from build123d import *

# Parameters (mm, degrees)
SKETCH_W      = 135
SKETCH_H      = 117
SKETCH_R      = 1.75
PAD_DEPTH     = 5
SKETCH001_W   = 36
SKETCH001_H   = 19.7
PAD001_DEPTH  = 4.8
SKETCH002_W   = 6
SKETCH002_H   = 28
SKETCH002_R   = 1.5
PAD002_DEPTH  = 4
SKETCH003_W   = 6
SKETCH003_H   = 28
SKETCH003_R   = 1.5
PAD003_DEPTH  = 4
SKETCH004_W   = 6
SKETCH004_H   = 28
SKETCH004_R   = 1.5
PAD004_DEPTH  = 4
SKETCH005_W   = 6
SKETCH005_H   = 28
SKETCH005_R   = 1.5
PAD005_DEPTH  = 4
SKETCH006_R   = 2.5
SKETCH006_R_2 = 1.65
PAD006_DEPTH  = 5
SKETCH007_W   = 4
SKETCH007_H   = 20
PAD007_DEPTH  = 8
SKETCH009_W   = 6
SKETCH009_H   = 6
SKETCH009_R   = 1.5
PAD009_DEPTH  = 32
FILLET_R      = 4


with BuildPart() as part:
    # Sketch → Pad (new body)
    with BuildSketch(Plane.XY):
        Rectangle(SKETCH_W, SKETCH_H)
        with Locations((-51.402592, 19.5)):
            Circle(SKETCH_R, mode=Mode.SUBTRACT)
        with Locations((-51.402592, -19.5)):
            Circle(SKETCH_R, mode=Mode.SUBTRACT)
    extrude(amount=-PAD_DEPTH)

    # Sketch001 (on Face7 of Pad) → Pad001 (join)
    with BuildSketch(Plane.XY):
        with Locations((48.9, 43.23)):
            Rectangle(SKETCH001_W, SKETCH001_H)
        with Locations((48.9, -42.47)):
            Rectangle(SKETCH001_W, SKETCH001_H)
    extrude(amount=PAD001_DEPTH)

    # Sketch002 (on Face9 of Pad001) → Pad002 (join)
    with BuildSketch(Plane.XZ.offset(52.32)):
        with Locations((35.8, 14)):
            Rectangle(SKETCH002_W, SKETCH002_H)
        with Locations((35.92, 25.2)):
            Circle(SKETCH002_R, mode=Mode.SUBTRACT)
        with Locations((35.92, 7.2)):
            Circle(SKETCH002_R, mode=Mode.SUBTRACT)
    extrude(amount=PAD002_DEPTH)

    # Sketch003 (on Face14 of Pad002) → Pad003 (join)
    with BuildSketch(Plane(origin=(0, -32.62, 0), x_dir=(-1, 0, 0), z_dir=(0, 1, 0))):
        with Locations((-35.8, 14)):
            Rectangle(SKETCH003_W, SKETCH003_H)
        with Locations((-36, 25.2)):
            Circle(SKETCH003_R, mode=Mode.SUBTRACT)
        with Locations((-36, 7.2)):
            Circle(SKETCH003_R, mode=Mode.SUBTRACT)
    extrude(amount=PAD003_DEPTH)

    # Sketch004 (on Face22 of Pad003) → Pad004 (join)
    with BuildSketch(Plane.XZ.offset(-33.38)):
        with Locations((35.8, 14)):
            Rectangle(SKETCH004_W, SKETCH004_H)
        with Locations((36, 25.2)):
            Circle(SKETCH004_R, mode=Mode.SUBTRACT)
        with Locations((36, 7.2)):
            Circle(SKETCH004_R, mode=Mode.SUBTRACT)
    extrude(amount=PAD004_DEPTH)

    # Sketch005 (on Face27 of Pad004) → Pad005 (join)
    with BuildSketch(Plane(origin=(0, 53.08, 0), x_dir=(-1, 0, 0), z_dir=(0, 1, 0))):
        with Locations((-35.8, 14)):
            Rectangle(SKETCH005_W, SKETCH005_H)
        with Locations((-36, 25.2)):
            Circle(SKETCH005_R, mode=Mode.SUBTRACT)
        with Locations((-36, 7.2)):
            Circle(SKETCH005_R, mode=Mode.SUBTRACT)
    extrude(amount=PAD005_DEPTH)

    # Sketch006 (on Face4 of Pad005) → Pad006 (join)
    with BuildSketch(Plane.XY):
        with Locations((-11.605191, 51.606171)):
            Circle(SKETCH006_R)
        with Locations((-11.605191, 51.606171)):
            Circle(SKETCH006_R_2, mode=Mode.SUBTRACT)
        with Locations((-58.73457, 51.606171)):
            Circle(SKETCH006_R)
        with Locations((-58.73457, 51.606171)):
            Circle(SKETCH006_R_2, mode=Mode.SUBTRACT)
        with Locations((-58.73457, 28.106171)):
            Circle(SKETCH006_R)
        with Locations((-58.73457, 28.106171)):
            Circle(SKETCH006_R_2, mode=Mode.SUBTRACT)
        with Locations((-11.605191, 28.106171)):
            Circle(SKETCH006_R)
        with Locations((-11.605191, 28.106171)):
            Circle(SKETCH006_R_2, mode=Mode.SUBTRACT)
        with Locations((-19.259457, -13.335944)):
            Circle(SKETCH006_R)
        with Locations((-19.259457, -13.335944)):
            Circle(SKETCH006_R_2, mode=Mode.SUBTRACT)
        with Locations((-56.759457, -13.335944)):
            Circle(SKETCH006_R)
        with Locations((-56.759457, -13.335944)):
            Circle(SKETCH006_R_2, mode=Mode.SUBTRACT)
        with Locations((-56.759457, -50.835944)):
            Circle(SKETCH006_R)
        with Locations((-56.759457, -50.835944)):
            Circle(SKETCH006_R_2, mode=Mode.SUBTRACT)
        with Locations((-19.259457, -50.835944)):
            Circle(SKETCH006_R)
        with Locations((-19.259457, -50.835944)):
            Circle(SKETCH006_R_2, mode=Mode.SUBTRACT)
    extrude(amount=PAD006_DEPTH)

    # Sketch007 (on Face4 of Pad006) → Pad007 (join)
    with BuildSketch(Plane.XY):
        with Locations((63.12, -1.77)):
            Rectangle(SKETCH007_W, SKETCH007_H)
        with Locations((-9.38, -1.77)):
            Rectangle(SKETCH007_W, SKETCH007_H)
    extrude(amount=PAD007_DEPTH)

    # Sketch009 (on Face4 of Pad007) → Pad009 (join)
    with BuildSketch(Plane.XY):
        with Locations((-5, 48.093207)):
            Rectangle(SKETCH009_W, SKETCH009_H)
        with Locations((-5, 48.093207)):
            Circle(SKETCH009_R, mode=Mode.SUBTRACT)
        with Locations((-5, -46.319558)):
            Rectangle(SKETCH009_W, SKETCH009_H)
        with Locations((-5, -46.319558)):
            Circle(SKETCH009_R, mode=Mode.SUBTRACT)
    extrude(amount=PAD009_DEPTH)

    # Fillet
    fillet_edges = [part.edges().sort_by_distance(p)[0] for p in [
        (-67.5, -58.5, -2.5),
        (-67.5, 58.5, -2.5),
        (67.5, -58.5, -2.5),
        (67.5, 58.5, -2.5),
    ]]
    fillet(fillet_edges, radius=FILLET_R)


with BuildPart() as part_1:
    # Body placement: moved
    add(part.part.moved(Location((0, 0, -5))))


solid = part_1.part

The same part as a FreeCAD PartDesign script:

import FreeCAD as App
import Part
import Sketcher
from FreeCAD import Vector
Q = App.Units.Quantity


def edges_at(feature, points):
    """Names of the edges that pass closest to the given points."""
    edges = feature.Shape.Edges
    near = lambda p: min(range(len(edges)), key=lambda i: edges[i].distToShape(Part.Vertex(*p))[0])
    return sorted({f"Edge{near(p) + 1}" for p in points})

doc = App.newDocument("Part")
body = doc.addObject("PartDesign::Body", "Body")

sketch1 = body.newObject("Sketcher::SketchObject", "Sketch")
sketch1.AttachmentSupport = (doc.getObject("XY_Plane"), [""])
sketch1.MapMode = "FlatFace"
sketch1.addGeometry(Part.LineSegment(Vector(-67.5, 58.5, 0), Vector(-67.5, -58.5, 0)), False)
sketch1.addGeometry(Part.LineSegment(Vector(-67.5, -58.5, 0), Vector(67.5, -58.5, 0)), False)
sketch1.addGeometry(Part.LineSegment(Vector(67.5, -58.5, 0), Vector(67.5, 58.5, 0)), False)
sketch1.addGeometry(Part.LineSegment(Vector(67.5, 58.5, 0), Vector(-67.5, 58.5, 0)), False)
sketch1.addGeometry(Part.Circle(Vector(-51.4, -19.5, 0), Vector(0, 0, 1), 1.8), False)
sketch1.addGeometry(Part.Circle(Vector(-51.4, 19.5, 0), Vector(0, 0, 1), 1.8), False)
sketch1.addConstraint(Sketcher.Constraint("Coincident", 0, 2, 1, 1))
sketch1.addConstraint(Sketcher.Constraint("Coincident", 1, 2, 2, 1))
sketch1.addConstraint(Sketcher.Constraint("Coincident", 2, 2, 3, 1))
sketch1.addConstraint(Sketcher.Constraint("Coincident", 3, 2, 0, 1))
sketch1.addConstraint(Sketcher.Constraint("Vertical", 0))
sketch1.addConstraint(Sketcher.Constraint("Horizontal", 1))
sketch1.addConstraint(Sketcher.Constraint("Vertical", 2))
sketch1.addConstraint(Sketcher.Constraint("Horizontal", 3))
sketch1.addConstraint(Sketcher.Constraint("Equal", 4, 5))
sketch1.addConstraint(Sketcher.Constraint("Symmetric", 0, 2, 2, 2, -1, 1))
sketch1.addConstraint(Sketcher.Constraint("Symmetric", 4, 3, 5, 3, -1))
sketch1.addConstraint(Sketcher.Constraint("Diameter", 4, Q("3.5 mm")))
sketch1.addConstraint(Sketcher.Constraint("DistanceX", 1, 1, 1, 2, Q("135 mm")))
sketch1.addConstraint(Sketcher.Constraint("DistanceY", 0, 2, 0, 1, Q("117 mm")))
sketch1.addConstraint(Sketcher.Constraint("DistanceY", 4, 3, 5, 3, Q("39 mm")))
sketch1.addConstraint(Sketcher.Constraint("DistanceX", 0, 2, 4, 3, Q("16.097408 mm")))
pad1 = body.newObject("PartDesign::Pad", "Pad")
pad1.Profile = sketch1
pad1.Length = 5
pad1.Reversed = True

sketch2 = body.newObject("Sketcher::SketchObject", "Sketch001")
sketch2.AttachmentSupport = (doc.getObject("XY_Plane"), [""])
sketch2.MapMode = "FlatFace"
sketch2.addGeometry(Part.LineSegment(Vector(31, 53, 0), Vector(31, 33, 0)), False)
sketch2.addGeometry(Part.LineSegment(Vector(31, 33, 0), Vector(67, 33, 0)), False)
sketch2.addGeometry(Part.LineSegment(Vector(67, 33, 0), Vector(67, 53, 0)), False)
sketch2.addGeometry(Part.LineSegment(Vector(67, 53, 0), Vector(31, 53, 0)), False)
sketch2.addGeometry(Part.LineSegment(Vector(31, -33, 0), Vector(31, -52, 0)), False)
sketch2.addGeometry(Part.LineSegment(Vector(31, -52, 0), Vector(67, -52, 0)), False)
sketch2.addGeometry(Part.LineSegment(Vector(67, -52, 0), Vector(67, -33, 0)), False)
sketch2.addGeometry(Part.LineSegment(Vector(67, -33, 0), Vector(31, -33, 0)), False)
sketch2.addConstraint(Sketcher.Constraint("Coincident", 0, 2, 1, 1))
sketch2.addConstraint(Sketcher.Constraint("Coincident", 1, 2, 2, 1))
sketch2.addConstraint(Sketcher.Constraint("Coincident", 2, 2, 3, 1))
sketch2.addConstraint(Sketcher.Constraint("Coincident", 3, 2, 0, 1))
sketch2.addConstraint(Sketcher.Constraint("Coincident", 4, 2, 5, 1))
sketch2.addConstraint(Sketcher.Constraint("Coincident", 5, 2, 6, 1))
sketch2.addConstraint(Sketcher.Constraint("Coincident", 6, 2, 7, 1))
sketch2.addConstraint(Sketcher.Constraint("Coincident", 7, 2, 4, 1))
sketch2.addConstraint(Sketcher.Constraint("Vertical", 0))
sketch2.addConstraint(Sketcher.Constraint("Horizontal", 1))
sketch2.addConstraint(Sketcher.Constraint("Vertical", 2))
sketch2.addConstraint(Sketcher.Constraint("Horizontal", 3))
sketch2.addConstraint(Sketcher.Constraint("Vertical", 4))
sketch2.addConstraint(Sketcher.Constraint("Horizontal", 5))
sketch2.addConstraint(Sketcher.Constraint("Vertical", 6))
sketch2.addConstraint(Sketcher.Constraint("Horizontal", 7))
sketch2.addConstraint(Sketcher.Constraint("Vertical", 3, 2, 4, 2))
sketch2.addConstraint(Sketcher.Constraint("Vertical", 2, 2, 5, 2))
sketch2.addConstraint(Sketcher.Constraint("Equal", 2, 4))
sketch2.addConstraint(Sketcher.Constraint("DistanceX", 1, 1, 1, 2, Q("36 mm")))
sketch2.addConstraint(Sketcher.Constraint("DistanceY", 0, 2, 0, 1, Q("19.7 mm")))
sketch2.addConstraint(Sketcher.Constraint("DistanceY", 6, 2, 1, 2, Q("66 mm")))
sketch2.addConstraint(Sketcher.Constraint("DistanceX", -1, 1, 0, 2, Q("30.9 mm")))
sketch2.addConstraint(Sketcher.Constraint("DistanceY", -1, 1, 0, 2, Q("33.38 mm")))
pad2 = body.newObject("PartDesign::Pad", "Pad001")
pad2.Profile = sketch2
pad2.Length = 4.8

sketch3 = body.newObject("Sketcher::SketchObject", "Sketch002")
sketch3.AttachmentSupport = (doc.getObject("XZ_Plane"), [""])
sketch3.MapMode = "FlatFace"
sketch3.AttachmentOffset = App.Placement(Vector(0, 0, 52.32), App.Rotation())
sketch3.addGeometry(Part.LineSegment(Vector(32.8, 28, 0), Vector(32.8, 0, 0)), False)
sketch3.addGeometry(Part.LineSegment(Vector(32.8, 0, 0), Vector(38.8, 0, 0)), False)
sketch3.addGeometry(Part.LineSegment(Vector(38.8, 0, 0), Vector(38.8, 28, 0)), False)
sketch3.addGeometry(Part.LineSegment(Vector(38.8, 28, 0), Vector(32.8, 28, 0)), False)
sketch3.addGeometry(Part.Circle(Vector(35.9, 7.2, 0), Vector(0, 0, 1), 1.5), False)
sketch3.addGeometry(Part.Circle(Vector(35.9, 25.2, 0), Vector(0, 0, 1), 1.5), False)
sketch3.addConstraint(Sketcher.Constraint("Coincident", 0, 2, 1, 1))
sketch3.addConstraint(Sketcher.Constraint("Coincident", 1, 2, 2, 1))
sketch3.addConstraint(Sketcher.Constraint("Coincident", 2, 2, 3, 1))
sketch3.addConstraint(Sketcher.Constraint("Coincident", 3, 2, 0, 1))
sketch3.addConstraint(Sketcher.Constraint("Vertical", 0))
sketch3.addConstraint(Sketcher.Constraint("Horizontal", 1))
sketch3.addConstraint(Sketcher.Constraint("Vertical", 2))
sketch3.addConstraint(Sketcher.Constraint("Horizontal", 3))
sketch3.addConstraint(Sketcher.Constraint("Equal", 4, 5))
sketch3.addConstraint(Sketcher.Constraint("PointOnObject", 0, 2, -1))
sketch3.addConstraint(Sketcher.Constraint("Vertical", 4, 3, 5, 3))
sketch3.addConstraint(Sketcher.Constraint("Diameter", 4, Q("3 mm")))
sketch3.addConstraint(Sketcher.Constraint("DistanceX", 1, 1, 1, 2, Q("6 mm")))
sketch3.addConstraint(Sketcher.Constraint("DistanceY", 0, 2, 0, 1, Q("28 mm")))
sketch3.addConstraint(Sketcher.Constraint("DistanceY", 4, 3, 5, 3, Q("18 mm")))
sketch3.addConstraint(Sketcher.Constraint("DistanceY", -1, 1, 4, 3, Q("7.2 mm")))
sketch3.addConstraint(Sketcher.Constraint("DistanceX", -1, 1, 0, 2, Q("32.8 mm")))
sketch3.addConstraint(Sketcher.Constraint("DistanceX", -1, 1, 4, 3, Q("35.92 mm")))
pad3 = body.newObject("PartDesign::Pad", "Pad002")
pad3.Profile = sketch3
pad3.Length = 4

sketch4 = body.newObject("Sketcher::SketchObject", "Sketch003")
sketch4.AttachmentSupport = (doc.getObject("XZ_Plane"), [""])
sketch4.MapMode = "FlatFace"
sketch4.AttachmentOffset = App.Placement(Vector(0, 0, 32.62), App.Rotation())
sketch4.addGeometry(Part.LineSegment(Vector(38.8, 28, 0), Vector(38.8, 0, 0)), False)
sketch4.addGeometry(Part.LineSegment(Vector(38.8, 0, 0), Vector(32.8, 0, 0)), False)
sketch4.addGeometry(Part.LineSegment(Vector(32.8, 0, 0), Vector(32.8, 28, 0)), False)
sketch4.addGeometry(Part.LineSegment(Vector(32.8, 28, 0), Vector(38.8, 28, 0)), False)
sketch4.addGeometry(Part.Circle(Vector(36, 7.2, 0), Vector(0, 0, 1), 1.5), False)
sketch4.addGeometry(Part.Circle(Vector(36, 25.2, 0), Vector(0, 0, 1), 1.5), False)
sketch4.addConstraint(Sketcher.Constraint("Coincident", 0, 2, 1, 1))
sketch4.addConstraint(Sketcher.Constraint("Coincident", 1, 2, 2, 1))
sketch4.addConstraint(Sketcher.Constraint("Coincident", 2, 2, 3, 1))
sketch4.addConstraint(Sketcher.Constraint("Coincident", 3, 2, 0, 1))
sketch4.addConstraint(Sketcher.Constraint("Vertical", 0))
sketch4.addConstraint(Sketcher.Constraint("Horizontal", 1))
sketch4.addConstraint(Sketcher.Constraint("Vertical", 2))
sketch4.addConstraint(Sketcher.Constraint("Horizontal", 3))
sketch4.addConstraint(Sketcher.Constraint("Equal", 4, 5))
sketch4.addConstraint(Sketcher.Constraint("PointOnObject", 0, 2, -1))
sketch4.addConstraint(Sketcher.Constraint("Vertical", 4, 3, 5, 3))
sketch4.addConstraint(Sketcher.Constraint("Diameter", 4, Q("3 mm")))
sketch4.addConstraint(Sketcher.Constraint("DistanceX", 1, 2, 1, 1, Q("6 mm")))
sketch4.addConstraint(Sketcher.Constraint("DistanceY", 0, 2, 0, 1, Q("28 mm")))
sketch4.addConstraint(Sketcher.Constraint("DistanceX", -1, 1, 4, 3, Q("36 mm")))
sketch4.addConstraint(Sketcher.Constraint("DistanceY", 4, 3, 5, 3, Q("18 mm")))
sketch4.addConstraint(Sketcher.Constraint("DistanceY", -1, 1, 4, 3, Q("7.2 mm")))
sketch4.addConstraint(Sketcher.Constraint("DistanceX", -1, 1, 0, 2, Q("38.8 mm")))
pad4 = body.newObject("PartDesign::Pad", "Pad003")
pad4.Profile = sketch4
pad4.Length = 4
pad4.Reversed = True

sketch5 = body.newObject("Sketcher::SketchObject", "Sketch004")
sketch5.AttachmentSupport = (doc.getObject("XZ_Plane"), [""])
sketch5.MapMode = "FlatFace"
sketch5.AttachmentOffset = App.Placement(Vector(0, 0, -33.38), App.Rotation())
sketch5.addGeometry(Part.LineSegment(Vector(32.8, 28, 0), Vector(32.8, 0, 0)), False)
sketch5.addGeometry(Part.LineSegment(Vector(32.8, 0, 0), Vector(38.8, 0, 0)), False)
sketch5.addGeometry(Part.LineSegment(Vector(38.8, 0, 0), Vector(38.8, 28, 0)), False)
sketch5.addGeometry(Part.LineSegment(Vector(38.8, 28, 0), Vector(32.8, 28, 0)), False)
sketch5.addGeometry(Part.Circle(Vector(36, 7.2, 0), Vector(0, 0, 1), 1.5), False)
sketch5.addGeometry(Part.Circle(Vector(36, 25.2, 0), Vector(0, 0, 1), 1.5), False)
sketch5.addConstraint(Sketcher.Constraint("Coincident", 0, 2, 1, 1))
sketch5.addConstraint(Sketcher.Constraint("Coincident", 1, 2, 2, 1))
sketch5.addConstraint(Sketcher.Constraint("Coincident", 2, 2, 3, 1))
sketch5.addConstraint(Sketcher.Constraint("Coincident", 3, 2, 0, 1))
sketch5.addConstraint(Sketcher.Constraint("Vertical", 0))
sketch5.addConstraint(Sketcher.Constraint("Horizontal", 1))
sketch5.addConstraint(Sketcher.Constraint("Vertical", 2))
sketch5.addConstraint(Sketcher.Constraint("Horizontal", 3))
sketch5.addConstraint(Sketcher.Constraint("Equal", 4, 5))
sketch5.addConstraint(Sketcher.Constraint("PointOnObject", 0, 2, -1))
sketch5.addConstraint(Sketcher.Constraint("Vertical", 4, 3, 5, 3))
sketch5.addConstraint(Sketcher.Constraint("Diameter", 4, Q("3 mm")))
sketch5.addConstraint(Sketcher.Constraint("DistanceX", 1, 1, 1, 2, Q("6 mm")))
sketch5.addConstraint(Sketcher.Constraint("DistanceY", 0, 2, 0, 1, Q("28 mm")))
sketch5.addConstraint(Sketcher.Constraint("DistanceX", -1, 1, 4, 3, Q("36 mm")))
sketch5.addConstraint(Sketcher.Constraint("DistanceY", 4, 3, 5, 3, Q("18 mm")))
sketch5.addConstraint(Sketcher.Constraint("DistanceY", -1, 1, 4, 3, Q("7.2 mm")))
sketch5.addConstraint(Sketcher.Constraint("DistanceX", -1, 1, 0, 2, Q("32.8 mm")))
pad5 = body.newObject("PartDesign::Pad", "Pad004")
pad5.Profile = sketch5
pad5.Length = 4

sketch6 = body.newObject("Sketcher::SketchObject", "Sketch005")
sketch6.AttachmentSupport = (doc.getObject("XZ_Plane"), [""])
sketch6.MapMode = "FlatFace"
sketch6.AttachmentOffset = App.Placement(Vector(0, 0, -53.08), App.Rotation())
sketch6.addGeometry(Part.LineSegment(Vector(38.8, 28, 0), Vector(38.8, 0, 0)), False)
sketch6.addGeometry(Part.LineSegment(Vector(38.8, 0, 0), Vector(32.8, 0, 0)), False)
sketch6.addGeometry(Part.LineSegment(Vector(32.8, 0, 0), Vector(32.8, 28, 0)), False)
sketch6.addGeometry(Part.LineSegment(Vector(32.8, 28, 0), Vector(38.8, 28, 0)), False)
sketch6.addGeometry(Part.Circle(Vector(36, 7.2, 0), Vector(0, 0, 1), 1.5), False)
sketch6.addGeometry(Part.Circle(Vector(36, 25.2, 0), Vector(0, 0, 1), 1.5), False)
sketch6.addConstraint(Sketcher.Constraint("Coincident", 0, 2, 1, 1))
sketch6.addConstraint(Sketcher.Constraint("Coincident", 1, 2, 2, 1))
sketch6.addConstraint(Sketcher.Constraint("Coincident", 2, 2, 3, 1))
sketch6.addConstraint(Sketcher.Constraint("Coincident", 3, 2, 0, 1))
sketch6.addConstraint(Sketcher.Constraint("Vertical", 0))
sketch6.addConstraint(Sketcher.Constraint("Horizontal", 1))
sketch6.addConstraint(Sketcher.Constraint("Vertical", 2))
sketch6.addConstraint(Sketcher.Constraint("Horizontal", 3))
sketch6.addConstraint(Sketcher.Constraint("Equal", 4, 5))
sketch6.addConstraint(Sketcher.Constraint("PointOnObject", 0, 2, -1))
sketch6.addConstraint(Sketcher.Constraint("Vertical", 4, 3, 5, 3))
sketch6.addConstraint(Sketcher.Constraint("Diameter", 4, Q("3 mm")))
sketch6.addConstraint(Sketcher.Constraint("DistanceX", 1, 2, 1, 1, Q("6 mm")))
sketch6.addConstraint(Sketcher.Constraint("DistanceY", 0, 2, 0, 1, Q("28 mm")))
sketch6.addConstraint(Sketcher.Constraint("DistanceX", -1, 1, 4, 3, Q("36 mm")))
sketch6.addConstraint(Sketcher.Constraint("DistanceY", 4, 3, 5, 3, Q("18 mm")))
sketch6.addConstraint(Sketcher.Constraint("DistanceY", -1, 1, 4, 3, Q("7.2 mm")))
sketch6.addConstraint(Sketcher.Constraint("DistanceX", -1, 1, 0, 2, Q("38.8 mm")))
pad6 = body.newObject("PartDesign::Pad", "Pad005")
pad6.Profile = sketch6
pad6.Length = 4
pad6.Reversed = True

sketch7 = body.newObject("Sketcher::SketchObject", "Sketch006")
sketch7.AttachmentSupport = (doc.getObject("XY_Plane"), [""])
sketch7.MapMode = "FlatFace"
sketch7.addGeometry(Part.Circle(Vector(-11.6, 51.6, 0), Vector(0, 0, 1), 2.5), False)
sketch7.addGeometry(Part.Circle(Vector(-11.6, 51.6, 0), Vector(0, 0, 1), 1.6), False)
sketch7.addGeometry(Part.Circle(Vector(-58.7, 51.6, 0), Vector(0, 0, 1), 2.5), False)
sketch7.addGeometry(Part.Circle(Vector(-58.7, 51.6, 0), Vector(0, 0, 1), 1.6), False)
sketch7.addGeometry(Part.Circle(Vector(-58.7, 28.1, 0), Vector(0, 0, 1), 2.5), False)
sketch7.addGeometry(Part.Circle(Vector(-58.7, 28.1, 0), Vector(0, 0, 1), 1.6), False)
sketch7.addGeometry(Part.Circle(Vector(-11.6, 28.1, 0), Vector(0, 0, 1), 2.5), False)
sketch7.addGeometry(Part.Circle(Vector(-11.6, 28.1, 0), Vector(0, 0, 1), 1.6), False)
sketch7.addGeometry(Part.Circle(Vector(-19.3, -13.3, 0), Vector(0, 0, 1), 2.5), False)
sketch7.addGeometry(Part.Circle(Vector(-19.3, -13.3, 0), Vector(0, 0, 1), 1.6), False)
sketch7.addGeometry(Part.Circle(Vector(-56.8, -13.3, 0), Vector(0, 0, 1), 2.5), False)
sketch7.addGeometry(Part.Circle(Vector(-56.8, -13.3, 0), Vector(0, 0, 1), 1.6), False)
sketch7.addGeometry(Part.Circle(Vector(-56.8, -50.8, 0), Vector(0, 0, 1), 2.5), False)
sketch7.addGeometry(Part.Circle(Vector(-56.8, -50.8, 0), Vector(0, 0, 1), 1.6), False)
sketch7.addGeometry(Part.Circle(Vector(-19.3, -50.8, 0), Vector(0, 0, 1), 2.5), False)
sketch7.addGeometry(Part.Circle(Vector(-19.3, -50.8, 0), Vector(0, 0, 1), 1.6), False)
sketch7.addConstraint(Sketcher.Constraint("Coincident", 1, 3, 0, 3))
sketch7.addConstraint(Sketcher.Constraint("Coincident", 3, 3, 2, 3))
sketch7.addConstraint(Sketcher.Constraint("Coincident", 5, 3, 4, 3))
sketch7.addConstraint(Sketcher.Constraint("Coincident", 7, 3, 6, 3))
sketch7.addConstraint(Sketcher.Constraint("Coincident", 9, 3, 8, 3))
sketch7.addConstraint(Sketcher.Constraint("Coincident", 11, 3, 10, 3))
sketch7.addConstraint(Sketcher.Constraint("Coincident", 13, 3, 12, 3))
sketch7.addConstraint(Sketcher.Constraint("Coincident", 15, 3, 14, 3))
sketch7.addConstraint(Sketcher.Constraint("Equal", 0, 2))
sketch7.addConstraint(Sketcher.Constraint("Equal", 1, 3))
sketch7.addConstraint(Sketcher.Constraint("Equal", 2, 4))
sketch7.addConstraint(Sketcher.Constraint("Equal", 3, 5))
sketch7.addConstraint(Sketcher.Constraint("Equal", 4, 6))
sketch7.addConstraint(Sketcher.Constraint("Equal", 5, 7))
sketch7.addConstraint(Sketcher.Constraint("Equal", 6, 8))
sketch7.addConstraint(Sketcher.Constraint("Equal", 7, 9))
sketch7.addConstraint(Sketcher.Constraint("Equal", 8, 10))
sketch7.addConstraint(Sketcher.Constraint("Equal", 9, 11))
sketch7.addConstraint(Sketcher.Constraint("Equal", 10, 12))
sketch7.addConstraint(Sketcher.Constraint("Equal", 11, 13))
sketch7.addConstraint(Sketcher.Constraint("Equal", 12, 14))
sketch7.addConstraint(Sketcher.Constraint("Equal", 13, 15))
sketch7.addConstraint(Sketcher.Constraint("Horizontal", 1, 3, 2, 3))
sketch7.addConstraint(Sketcher.Constraint("Horizontal", 5, 3, 6, 3))
sketch7.addConstraint(Sketcher.Constraint("Horizontal", 9, 3, 10, 3))
sketch7.addConstraint(Sketcher.Constraint("Horizontal", 13, 3, 14, 3))
sketch7.addConstraint(Sketcher.Constraint("Vertical", 3, 3, 4, 3))
sketch7.addConstraint(Sketcher.Constraint("Vertical", 1, 3, 6, 3))
sketch7.addConstraint(Sketcher.Constraint("Vertical", 11, 3, 12, 3))
sketch7.addConstraint(Sketcher.Constraint("Vertical", 9, 3, 14, 3))
sketch7.addConstraint(Sketcher.Constraint("Diameter", 0, Q("5 mm")))
sketch7.addConstraint(Sketcher.Constraint("Diameter", 1, Q("3.3 mm")))
sketch7.addConstraint(Sketcher.Constraint("DistanceY", 4, 3, 2, 3, Q("23.5 mm")))
sketch7.addConstraint(Sketcher.Constraint("DistanceX", 10, 3, 8, 3, Q("37.5 mm")))
sketch7.addConstraint(Sketcher.Constraint("DistanceY", 12, 3, 10, 3, Q("37.5 mm")))
sketch7.addConstraint(Sketcher.Constraint("DistanceX", 0, 3, -1, 1, Q("11.605191 mm")))
sketch7.addConstraint(Sketcher.Constraint("DistanceY", -1, 1, 0, 3, Q("51.606171 mm")))
sketch7.addConstraint(Sketcher.Constraint("DistanceX", 2, 3, -1, 1, Q("58.73457 mm")))
sketch7.addConstraint(Sketcher.Constraint("DistanceX", 8, 3, -1, 1, Q("19.259457 mm")))
sketch7.addConstraint(Sketcher.Constraint("DistanceY", 8, 3, -1, 1, Q("13.335944 mm")))
pad7 = body.newObject("PartDesign::Pad", "Pad006")
pad7.Profile = sketch7
pad7.Length = 5

sketch8 = body.newObject("Sketcher::SketchObject", "Sketch007")
sketch8.AttachmentSupport = (doc.getObject("XY_Plane"), [""])
sketch8.MapMode = "FlatFace"
sketch8.addGeometry(Part.LineSegment(Vector(61.1, 8.2, 0), Vector(61.1, -11.8, 0)), False)
sketch8.addGeometry(Part.LineSegment(Vector(61.1, -11.8, 0), Vector(65.1, -11.8, 0)), False)
sketch8.addGeometry(Part.LineSegment(Vector(65.1, -11.8, 0), Vector(65.1, 8.2, 0)), False)
sketch8.addGeometry(Part.LineSegment(Vector(65.1, 8.2, 0), Vector(61.1, 8.2, 0)), False)
sketch8.addGeometry(Part.LineSegment(Vector(-11.4, 8.2, 0), Vector(-11.4, -11.8, 0)), False)
sketch8.addGeometry(Part.LineSegment(Vector(-11.4, -11.8, 0), Vector(-7.4, -11.8, 0)), False)
sketch8.addGeometry(Part.LineSegment(Vector(-7.4, -11.8, 0), Vector(-7.4, 8.2, 0)), False)
sketch8.addGeometry(Part.LineSegment(Vector(-7.4, 8.2, 0), Vector(-11.4, 8.2, 0)), False)
sketch8.addConstraint(Sketcher.Constraint("Coincident", 0, 2, 1, 1))
sketch8.addConstraint(Sketcher.Constraint("Coincident", 1, 2, 2, 1))
sketch8.addConstraint(Sketcher.Constraint("Coincident", 2, 2, 3, 1))
sketch8.addConstraint(Sketcher.Constraint("Coincident", 3, 2, 0, 1))
sketch8.addConstraint(Sketcher.Constraint("Coincident", 4, 2, 5, 1))
sketch8.addConstraint(Sketcher.Constraint("Coincident", 5, 2, 6, 1))
sketch8.addConstraint(Sketcher.Constraint("Coincident", 6, 2, 7, 1))
sketch8.addConstraint(Sketcher.Constraint("Coincident", 7, 2, 4, 1))
sketch8.addConstraint(Sketcher.Constraint("Vertical", 0))
sketch8.addConstraint(Sketcher.Constraint("Horizontal", 1))
sketch8.addConstraint(Sketcher.Constraint("Vertical", 2))
sketch8.addConstraint(Sketcher.Constraint("Horizontal", 3))
sketch8.addConstraint(Sketcher.Constraint("Vertical", 4))
sketch8.addConstraint(Sketcher.Constraint("Horizontal", 5))
sketch8.addConstraint(Sketcher.Constraint("Vertical", 6))
sketch8.addConstraint(Sketcher.Constraint("Horizontal", 7))
sketch8.addConstraint(Sketcher.Constraint("Horizontal", 1, 2, 4, 2))
sketch8.addConstraint(Sketcher.Constraint("Horizontal", 3, 2, 6, 2))
sketch8.addConstraint(Sketcher.Constraint("Equal", 3, 5))
sketch8.addConstraint(Sketcher.Constraint("DistanceX", 1, 1, 1, 2, Q("4 mm")))
sketch8.addConstraint(Sketcher.Constraint("DistanceY", 0, 2, 0, 1, Q("20 mm")))
sketch8.addConstraint(Sketcher.Constraint("DistanceX", 4, 2, 0, 2, Q("72.5 mm")))
sketch8.addConstraint(Sketcher.Constraint("DistanceX", -1, 1, 0, 2, Q("61.12 mm")))
sketch8.addConstraint(Sketcher.Constraint("DistanceY", 0, 2, -1, 1, Q("11.77 mm")))
pad8 = body.newObject("PartDesign::Pad", "Pad007")
pad8.Profile = sketch8
pad8.Length = 8

sketch9 = body.newObject("Sketcher::SketchObject", "Sketch008")
sketch9.AttachmentSupport = (doc.getObject("XY_Plane"), [""])
sketch9.MapMode = "FlatFace"
sketch9.addGeometry(Part.LineSegment(Vector(-8, 51.1, 0), Vector(-8, 45.1, 0)), False)
sketch9.addGeometry(Part.LineSegment(Vector(-8, 45.1, 0), Vector(-2, 45.1, 0)), False)
sketch9.addGeometry(Part.LineSegment(Vector(-2, 45.1, 0), Vector(-2, 51.1, 0)), False)
sketch9.addGeometry(Part.LineSegment(Vector(-2, 51.1, 0), Vector(-8, 51.1, 0)), False)
sketch9.addGeometry(Part.Circle(Vector(-5, 48.1, 0), Vector(0, 0, 1), 1.5), False)
sketch9.addGeometry(Part.LineSegment(Vector(-8, -43.3, 0), Vector(-8, -49.3, 0)), False)
sketch9.addGeometry(Part.LineSegment(Vector(-8, -49.3, 0), Vector(-2, -49.3, 0)), False)
sketch9.addGeometry(Part.LineSegment(Vector(-2, -49.3, 0), Vector(-2, -43.3, 0)), False)
sketch9.addGeometry(Part.LineSegment(Vector(-2, -43.3, 0), Vector(-8, -43.3, 0)), False)
sketch9.addGeometry(Part.Circle(Vector(-5, -46.3, 0), Vector(0, 0, 1), 1.5), False)
sketch9.addConstraint(Sketcher.Constraint("Coincident", 0, 2, 1, 1))
sketch9.addConstraint(Sketcher.Constraint("Coincident", 1, 2, 2, 1))
sketch9.addConstraint(Sketcher.Constraint("Coincident", 2, 2, 3, 1))
sketch9.addConstraint(Sketcher.Constraint("Coincident", 3, 2, 0, 1))
sketch9.addConstraint(Sketcher.Constraint("Coincident", 5, 2, 6, 1))
sketch9.addConstraint(Sketcher.Constraint("Coincident", 6, 2, 7, 1))
sketch9.addConstraint(Sketcher.Constraint("Coincident", 7, 2, 8, 1))
sketch9.addConstraint(Sketcher.Constraint("Coincident", 8, 2, 5, 1))
sketch9.addConstraint(Sketcher.Constraint("Vertical", 0))
sketch9.addConstraint(Sketcher.Constraint("Horizontal", 1))
sketch9.addConstraint(Sketcher.Constraint("Vertical", 2))
sketch9.addConstraint(Sketcher.Constraint("Horizontal", 3))
sketch9.addConstraint(Sketcher.Constraint("Vertical", 5))
sketch9.addConstraint(Sketcher.Constraint("Horizontal", 6))
sketch9.addConstraint(Sketcher.Constraint("Vertical", 7))
sketch9.addConstraint(Sketcher.Constraint("Horizontal", 8))
sketch9.addConstraint(Sketcher.Constraint("Equal", 4, 9))
sketch9.addConstraint(Sketcher.Constraint("Vertical", 4, 3, 9, 3))
sketch9.addConstraint(Sketcher.Constraint("Vertical", 3, 2, 5, 2))
sketch9.addConstraint(Sketcher.Constraint("Vertical", 2, 2, 6, 2))
sketch9.addConstraint(Sketcher.Constraint("Equal", 8, 0))
sketch9.addConstraint(Sketcher.Constraint("Equal", 2, 5))
sketch9.addConstraint(Sketcher.Constraint("Diameter", 4, Q("3 mm")))
sketch9.addConstraint(Sketcher.Constraint("DistanceX", 1, 1, 1, 2, Q("6 mm")))
sketch9.addConstraint(Sketcher.Constraint("DistanceX", 4, 3, -1, 1, Q("5 mm")))
sketch9.addConstraint(Sketcher.Constraint("DistanceX", 0, 2, -1, 1, Q("8 mm")))
sketch9.addConstraint(Sketcher.Constraint("DistanceY", 0, 2, 4, 3, Q("3 mm")))
sketch9.addConstraint(Sketcher.Constraint("DistanceY", 5, 2, 9, 3, Q("3 mm")))
sketch9.addConstraint(Sketcher.Constraint("DistanceY", -1, 1, 4, 3, Q("48.093207 mm")))
sketch9.addConstraint(Sketcher.Constraint("DistanceY", 9, 3, -1, 1, Q("46.319558 mm")))
pad9 = body.newObject("PartDesign::Pad", "Pad008")
pad9.Profile = sketch9
pad9.Length = 32
doc.recompute()

fillet = body.newObject("PartDesign::Fillet", "Fillet")
fillet.Base = (pad9, edges_at(pad9, [
    (-67.5, -58.5, -2.5),
    (-67.5, 58.5, -2.5),
    (67.5, -58.5, -2.5),
    (67.5, 58.5, -2.5),
]))
fillet.Radius = 4
body2 = doc.addObject("PartDesign::Body", "Body001")
doc.recompute()

body.Placement = App.Placement(Vector(0, 0, -5), App.Rotation(Vector(0, 0, 1), 0))
boolean = body2.newObject("PartDesign::Boolean", "Boolean")
boolean.Type = "Fuse"
boolean.addObjects([body])

doc.recompute()
